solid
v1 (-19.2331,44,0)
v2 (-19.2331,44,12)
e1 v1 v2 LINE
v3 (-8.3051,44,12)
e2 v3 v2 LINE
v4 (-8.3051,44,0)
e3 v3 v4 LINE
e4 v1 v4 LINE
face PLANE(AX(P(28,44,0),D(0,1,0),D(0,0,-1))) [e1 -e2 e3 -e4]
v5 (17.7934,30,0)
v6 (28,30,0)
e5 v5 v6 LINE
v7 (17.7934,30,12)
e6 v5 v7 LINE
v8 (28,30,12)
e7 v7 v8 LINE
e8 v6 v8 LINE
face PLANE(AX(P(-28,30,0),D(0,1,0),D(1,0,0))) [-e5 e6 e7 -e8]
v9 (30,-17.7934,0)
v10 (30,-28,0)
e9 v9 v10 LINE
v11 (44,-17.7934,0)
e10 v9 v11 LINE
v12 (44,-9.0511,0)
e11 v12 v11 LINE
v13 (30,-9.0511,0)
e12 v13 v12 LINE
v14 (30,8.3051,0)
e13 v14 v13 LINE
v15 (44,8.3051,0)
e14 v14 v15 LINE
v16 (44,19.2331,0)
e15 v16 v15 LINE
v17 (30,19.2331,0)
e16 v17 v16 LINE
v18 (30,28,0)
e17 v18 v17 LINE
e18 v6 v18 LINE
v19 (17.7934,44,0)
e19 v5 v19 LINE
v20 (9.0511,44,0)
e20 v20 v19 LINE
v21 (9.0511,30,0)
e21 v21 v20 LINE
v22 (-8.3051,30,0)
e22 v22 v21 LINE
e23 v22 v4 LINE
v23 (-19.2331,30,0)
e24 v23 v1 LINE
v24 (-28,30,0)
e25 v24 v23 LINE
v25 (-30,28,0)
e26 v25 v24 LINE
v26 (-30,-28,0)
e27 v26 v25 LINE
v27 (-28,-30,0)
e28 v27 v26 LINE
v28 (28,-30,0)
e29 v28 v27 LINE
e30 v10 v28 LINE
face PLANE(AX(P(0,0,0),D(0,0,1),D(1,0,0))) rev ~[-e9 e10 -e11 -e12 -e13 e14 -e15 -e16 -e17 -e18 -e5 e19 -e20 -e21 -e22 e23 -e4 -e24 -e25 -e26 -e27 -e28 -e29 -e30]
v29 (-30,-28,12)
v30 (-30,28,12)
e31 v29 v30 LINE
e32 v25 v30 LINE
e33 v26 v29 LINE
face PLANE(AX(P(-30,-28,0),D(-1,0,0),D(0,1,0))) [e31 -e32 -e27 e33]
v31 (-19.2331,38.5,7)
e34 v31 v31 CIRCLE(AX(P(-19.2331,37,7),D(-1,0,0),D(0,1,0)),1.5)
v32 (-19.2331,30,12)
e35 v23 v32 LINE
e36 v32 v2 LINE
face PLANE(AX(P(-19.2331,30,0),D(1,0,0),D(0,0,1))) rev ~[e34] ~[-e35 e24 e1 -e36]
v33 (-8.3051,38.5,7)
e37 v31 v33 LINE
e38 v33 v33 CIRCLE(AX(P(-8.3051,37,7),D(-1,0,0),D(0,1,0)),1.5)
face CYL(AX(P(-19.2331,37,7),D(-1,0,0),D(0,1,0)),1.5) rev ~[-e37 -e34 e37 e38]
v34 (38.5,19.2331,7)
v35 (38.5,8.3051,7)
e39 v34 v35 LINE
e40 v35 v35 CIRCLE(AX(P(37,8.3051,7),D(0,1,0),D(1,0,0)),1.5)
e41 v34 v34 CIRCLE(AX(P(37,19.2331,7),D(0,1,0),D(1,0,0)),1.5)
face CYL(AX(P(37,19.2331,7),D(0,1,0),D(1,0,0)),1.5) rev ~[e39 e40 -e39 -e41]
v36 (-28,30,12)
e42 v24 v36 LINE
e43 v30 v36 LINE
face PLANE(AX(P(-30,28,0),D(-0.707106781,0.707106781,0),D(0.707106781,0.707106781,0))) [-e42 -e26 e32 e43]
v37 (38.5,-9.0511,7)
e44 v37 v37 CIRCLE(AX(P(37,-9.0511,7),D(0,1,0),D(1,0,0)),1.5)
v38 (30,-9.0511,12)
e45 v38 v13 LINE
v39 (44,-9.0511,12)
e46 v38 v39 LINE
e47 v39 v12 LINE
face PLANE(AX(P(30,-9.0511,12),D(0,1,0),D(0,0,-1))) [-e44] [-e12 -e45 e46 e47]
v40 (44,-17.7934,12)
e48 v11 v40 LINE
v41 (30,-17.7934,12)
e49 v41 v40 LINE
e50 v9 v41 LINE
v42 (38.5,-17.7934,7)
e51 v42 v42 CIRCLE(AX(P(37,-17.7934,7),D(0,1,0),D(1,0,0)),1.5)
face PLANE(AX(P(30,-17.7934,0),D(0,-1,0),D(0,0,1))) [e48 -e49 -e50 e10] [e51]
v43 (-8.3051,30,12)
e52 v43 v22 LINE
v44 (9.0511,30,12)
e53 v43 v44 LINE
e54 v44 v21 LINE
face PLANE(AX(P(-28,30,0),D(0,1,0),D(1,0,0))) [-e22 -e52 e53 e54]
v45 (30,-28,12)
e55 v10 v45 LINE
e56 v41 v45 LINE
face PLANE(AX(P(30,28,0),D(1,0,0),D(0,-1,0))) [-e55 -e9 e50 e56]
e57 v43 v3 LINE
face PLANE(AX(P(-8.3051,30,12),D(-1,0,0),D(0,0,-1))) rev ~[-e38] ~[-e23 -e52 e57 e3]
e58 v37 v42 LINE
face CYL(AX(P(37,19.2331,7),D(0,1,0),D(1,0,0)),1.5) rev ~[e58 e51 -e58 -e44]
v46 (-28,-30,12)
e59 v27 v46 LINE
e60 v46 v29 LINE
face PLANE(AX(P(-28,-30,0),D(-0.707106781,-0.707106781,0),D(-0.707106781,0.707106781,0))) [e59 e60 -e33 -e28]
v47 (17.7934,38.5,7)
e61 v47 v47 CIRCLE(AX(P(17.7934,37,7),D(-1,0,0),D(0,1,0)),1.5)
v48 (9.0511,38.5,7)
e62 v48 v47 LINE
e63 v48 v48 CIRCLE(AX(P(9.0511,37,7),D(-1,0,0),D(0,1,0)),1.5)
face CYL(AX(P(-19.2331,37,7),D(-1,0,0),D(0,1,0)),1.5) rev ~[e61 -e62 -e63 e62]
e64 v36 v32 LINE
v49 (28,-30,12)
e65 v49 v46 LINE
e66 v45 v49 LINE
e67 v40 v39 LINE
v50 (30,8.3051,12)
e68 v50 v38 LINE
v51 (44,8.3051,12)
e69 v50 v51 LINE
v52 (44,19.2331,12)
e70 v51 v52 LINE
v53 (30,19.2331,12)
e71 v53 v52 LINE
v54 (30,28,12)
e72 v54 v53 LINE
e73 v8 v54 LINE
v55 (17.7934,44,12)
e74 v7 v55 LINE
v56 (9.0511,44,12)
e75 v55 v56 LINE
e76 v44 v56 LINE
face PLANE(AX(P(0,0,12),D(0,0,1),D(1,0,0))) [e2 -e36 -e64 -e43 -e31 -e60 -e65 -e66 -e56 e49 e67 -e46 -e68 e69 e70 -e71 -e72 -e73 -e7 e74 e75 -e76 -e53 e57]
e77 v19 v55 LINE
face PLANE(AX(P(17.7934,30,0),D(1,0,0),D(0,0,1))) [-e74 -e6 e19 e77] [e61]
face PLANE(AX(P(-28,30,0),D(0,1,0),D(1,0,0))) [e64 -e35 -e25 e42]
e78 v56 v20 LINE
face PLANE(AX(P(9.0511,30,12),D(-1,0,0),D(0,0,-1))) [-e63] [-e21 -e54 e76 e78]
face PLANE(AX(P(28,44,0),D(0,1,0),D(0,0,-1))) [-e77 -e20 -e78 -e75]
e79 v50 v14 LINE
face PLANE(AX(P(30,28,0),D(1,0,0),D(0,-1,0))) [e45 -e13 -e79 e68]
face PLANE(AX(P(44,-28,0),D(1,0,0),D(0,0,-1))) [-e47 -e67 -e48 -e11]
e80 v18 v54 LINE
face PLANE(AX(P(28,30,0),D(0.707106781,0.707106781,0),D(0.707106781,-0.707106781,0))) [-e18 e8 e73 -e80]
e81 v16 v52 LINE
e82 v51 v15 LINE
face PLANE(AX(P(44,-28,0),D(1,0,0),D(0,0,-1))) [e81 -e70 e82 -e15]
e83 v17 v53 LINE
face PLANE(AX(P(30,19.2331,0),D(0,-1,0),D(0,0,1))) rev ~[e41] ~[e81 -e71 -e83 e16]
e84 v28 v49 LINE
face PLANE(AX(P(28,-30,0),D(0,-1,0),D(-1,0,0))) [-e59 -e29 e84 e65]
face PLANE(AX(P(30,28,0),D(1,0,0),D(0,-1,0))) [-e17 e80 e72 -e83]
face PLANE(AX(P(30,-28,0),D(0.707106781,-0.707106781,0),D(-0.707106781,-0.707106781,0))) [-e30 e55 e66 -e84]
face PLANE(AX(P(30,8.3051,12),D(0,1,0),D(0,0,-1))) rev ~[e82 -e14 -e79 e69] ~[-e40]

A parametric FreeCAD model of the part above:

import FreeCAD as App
import Part
import Sketcher
from FreeCAD import Vector


def add_polygon(sketch, points):
    """Adds a closed chain of lines whose ends are joined by coincident constraints."""
    first, n = sketch.GeometryCount, len(points)
    for a, b in zip(points, points[1:] + points[:1]):
        sketch.addGeometry(Part.LineSegment(App.Vector(*a, 0), App.Vector(*b, 0)), False)
    for i in range(n):
        sketch.addConstraint(Sketcher.Constraint("Coincident", first + i, 2, first + (i + 1) % n, 1))

doc = App.newDocument("Part")
params = doc.addObject("Spreadsheet::Sheet", "Params")
for row, (alias, value) in enumerate([
    ("sketch1_width", "56 mm"),
    ("pad1_length", "12 mm"),
    ("sketch2_height", "12 mm"),
    ("pad2_length", "14 mm"),
    ("sketch3_diameter", "3 mm"),
], start=1):
    params.set(f"A{row}", alias)
    params.set(f"B{row}", "=" + value)
    params.setAlias(f"B{row}", alias)

body = doc.addObject("PartDesign::Body", "Body")

sketch1 = body.newObject("Sketcher::SketchObject", "Sketch")
sketch1.AttachmentSupport = (doc.getObject("XY_Plane"), [""])
sketch1.MapMode = "FlatFace"
add_polygon(sketch1, [(-28, 30), (-30, 28), (-30, -28), (-28, -30), (28, -30), (30, -28), (30, 28), (28, 30)])
sketch1.addConstraint([
    Sketcher.Constraint("Vertical", 1),
    Sketcher.Constraint("Horizontal", 3),
    Sketcher.Constraint("Vertical", 5),
    Sketcher.Constraint("Horizontal", 7),
    Sketcher.Constraint("Symmetric", 0, 2, 4, 2, -1, 1),
    Sketcher.Constraint("Symmetric", 2, 2, 6, 2, -1, 1),
    Sketcher.Constraint("Perpendicular", 0, 2),
    Sketcher.Constraint("Perpendicular", 2, 4),
    Sketcher.Constraint("Perpendicular", 4, 6),
    Sketcher.Constraint("Horizontal", 1, 2, 4, 2),
    Sketcher.Constraint("Vertical", 3, 2, 6, 2),
    Sketcher.Constraint("Equal", 7, 1),
    Sketcher.Constraint("DistanceX", 3, 1, 3, 2, 56.0),
    Sketcher.Constraint("DistanceX", 0, 2, -1, 1, 30.0),
])
sketch1.setExpression("Constraints[20]", "Params.sketch1_width")
pad1 = body.newObject("PartDesign::Pad", "Pad")
pad1.Profile = sketch1
pad1.setExpression("Length", "Params.pad1_length")

sketch2 = body.newObject("Sketcher::SketchObject", "Sketch001")
sketch2.AttachmentSupport = (doc.getObject("YZ_Plane"), [""])
sketch2.MapMode = "FlatFace"
sketch2.AttachmentOffset = App.Placement(Vector(0, 0, 30), App.Rotation())
add_polygon(sketch2, [(8.3051, 0), (19.2331, 0), (19.2331, 12), (8.3051, 12)])
add_polygon(sketch2, [(-17.7934, 0), (-9.0511, 0), (-9.0511, 12), (-17.7934, 12)])
sketch2.addConstraint([
    Sketcher.Constraint("Horizontal", 0),
    Sketcher.Constraint("Vertical", 1),
    Sketcher.Constraint("Horizontal", 2),
    Sketcher.Constraint("Vertical", 3),
    Sketcher.Constraint("Horizontal", 4),
    Sketcher.Constraint("Vertical", 5),
    Sketcher.Constraint("Horizontal", 6),
    Sketcher.Constraint("Vertical", 7),
    Sketcher.Constraint("PointOnObject", 0, 2, -1),
    Sketcher.Constraint("PointOnObject", 4, 2, -1),
    Sketcher.Constraint("Horizontal", 2, 2, 5, 2),
    Sketcher.Constraint("DistanceY", 1, 1, 1, 2, 12.0),
    Sketcher.Constraint("DistanceX", 0, 1, 0, 2, 10.928),
    Sketcher.Constraint("DistanceX", 4, 1, 4, 2, 8.7423),
    Sketcher.Constraint("DistanceX", -1, 1, 0, 2, 19.233),
    Sketcher.Constraint("DistanceX", 4, 2, -1, 1, 9.051),
])
sketch2.setExpression("Constraints[19]", "Params.sketch2_height")
pad2 = body.newObject("PartDesign::Pad", "Pad001")
pad2.Profile = sketch2
pad2.setExpression("Length", "Params.pad2_length")

sketch3 = body.newObject("Sketcher::SketchObject", "Sketch002")
sketch3.AttachmentSupport = (doc.getObject("XZ_Plane"), [""])
sketch3.MapMode = "FlatFace"
sketch3.AttachmentOffset = App.Placement(Vector(0, 0, -19.2331), App.Rotation())
sketch3.addGeometry(Part.Circle(Vector(37, 7, 0), Vector(0, 0, 1), 1.5), False)
sketch3.addConstraint([
    Sketcher.Constraint("Diameter", 0, 3.0),
    Sketcher.Constraint("DistanceX", -1, 1, 0, 3, 37.0),
    Sketcher.Constraint("DistanceY", -1, 1, 0, 3, 7.0),
])
sketch3.setExpression("Constraints[0]", "Params.sketch3_diameter")
pocket1 = body.newObject("PartDesign::Pocket", "Pocket")
pocket1.Profile = sketch3
pocket1.Type = "ThroughAll"
pocket1.Reversed = True
doc.recompute()

polarpattern = body.newObject("PartDesign::PolarPattern", "PolarPattern")
polarpattern.Originals = [pad2, pocket1]
polarpattern.Axis = (doc.getObject("Z_Axis"), [""])
polarpattern.Angle = 90
polarpattern.Occurrences = 2
body.Tip = polarpattern

doc.recompute()
